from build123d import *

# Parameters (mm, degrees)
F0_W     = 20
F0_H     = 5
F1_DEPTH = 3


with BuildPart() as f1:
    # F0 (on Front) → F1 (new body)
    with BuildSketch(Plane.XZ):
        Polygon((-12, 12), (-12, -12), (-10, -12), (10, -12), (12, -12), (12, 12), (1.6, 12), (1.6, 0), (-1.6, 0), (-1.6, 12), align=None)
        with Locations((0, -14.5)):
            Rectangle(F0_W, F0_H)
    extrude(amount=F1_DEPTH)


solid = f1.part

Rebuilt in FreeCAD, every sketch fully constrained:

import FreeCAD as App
import Part
import Sketcher
from FreeCAD import Vector

doc = App.newDocument("Part")
params = doc.addObject("Spreadsheet::Sheet", "Params")
for row, (alias, value) in enumerate([
    ("sketch1_width", "2 mm"),
    ("sketch1_width2", "20 mm"),
    ("sketch1_height", "24 mm"),
    ("sketch1_height2", "5 mm"),
    ("sketch1_width3", "10.4 mm"),
    ("pad1_length", "3 mm"),
], start=1):
    params.set(f"A{row}", alias)
    params.set(f"B{row}", "=" + value)
    params.setAlias(f"B{row}", alias)

body = doc.addObject("PartDesign::Body", "Body")

sketch1 = body.newObject("Sketcher::SketchObject", "Sketch")
sketch1.AttachmentSupport = (doc.getObject("XZ_Plane"), [""])
sketch1.MapMode = "FlatFace"
sketch1.addGeometry(Part.LineSegment(Vector(-12, 12, 0), Vector(-12, -12, 0)), False)
sketch1.addGeometry(Part.LineSegment(Vector(-12, -12, 0), Vector(-10, -12, 0)), False)
sketch1.addGeometry(Part.LineSegment(Vector(-10, -12, 0), Vector(-10, -17, 0)), False)
sketch1.addGeometry(Part.LineSegment(Vector(-10, -17, 0), Vector(10, -17, 0)), False)
sketch1.addGeometry(Part.LineSegment(Vector(10, -17, 0), Vector(10, -12, 0)), False)
sketch1.addGeometry(Part.LineSegment(Vector(10, -12, 0), Vector(12, -12, 0)), False)
sketch1.addGeometry(Part.LineSegment(Vector(12, -12, 0), Vector(12, 12, 0)), False)
sketch1.addGeometry(Part.LineSegment(Vector(12, 12, 0), Vector(1.6, 12, 0)), False)
sketch1.addGeometry(Part.LineSegment(Vector(1.6, 12, 0), Vector(1.6, 0, 0)), False)
sketch1.addGeometry(Part.LineSegment(Vector(1.6, 0, 0), Vector(-1.6, 0, 0)), False)
sketch1.addGeometry(Part.LineSegment(Vector(-1.6, 0, 0), Vector(-1.6, 12, 0)), False)
sketch1.addGeometry(Part.LineSegment(Vector(-1.6, 12, 0), Vector(-12, 12, 0)), False)
sketch1.addConstraint(Sketcher.Constraint("Coincident", 0, 2, 1, 1))
sketch1.addConstraint(Sketcher.Constraint("Coincident", 1, 2, 2, 1))
sketch1.addConstraint(Sketcher.Constraint("Coincident", 2, 2, 3, 1))
sketch1.addConstraint(Sketcher.Constraint("Coincident", 3, 2, 4, 1))
sketch1.addConstraint(Sketcher.Constraint("Coincident", 4, 2, 5, 1))
sketch1.addConstraint(Sketcher.Constraint("Coincident", 5, 2, 6, 1))
sketch1.addConstraint(Sketcher.Constraint("Coincident", 6, 2, 7, 1))
sketch1.addConstraint(Sketcher.Constraint("Coincident", 7, 2, 8, 1))
sketch1.addConstraint(Sketcher.Constraint("Coincident", 8, 2, 9, 1))
sketch1.addConstraint(Sketcher.Constraint("Coincident", 9, 2, 10, 1))
sketch1.addConstraint(Sketcher.Constraint("Coincident", 10, 2, 11, 1))
sketch1.addConstraint(Sketcher.Constraint("Coincident", 11, 2, 0, 1))
sketch1.addConstraint(Sketcher.Constraint("Vertical", 0))
sketch1.addConstraint(Sketcher.Constraint("Horizontal", 1))
sketch1.addConstraint(Sketcher.Constraint("Vertical", 2))
sketch1.addConstraint(Sketcher.Constraint("Horizontal", 3))
sketch1.addConstraint(Sketcher.Constraint("Vertical", 4))
sketch1.addConstraint(Sketcher.Constraint("Horizontal", 5))
sketch1.addConstraint(Sketcher.Constraint("Vertical", 6))
sketch1.addConstraint(Sketcher.Constraint("Horizontal", 7))
sketch1.addConstraint(Sketcher.Constraint("Vertical", 8))
sketch1.addConstraint(Sketcher.Constraint("Horizontal", 9))
sketch1.addConstraint(Sketcher.Constraint("Vertical", 10))
sketch1.addConstraint(Sketcher.Constraint("Horizontal", 11))
sketch1.addConstraint(Sketcher.Constraint("Symmetric", 0, 2, 6, 2, -1, 1))
sketch1.addConstraint(Sketcher.Constraint("Symmetric", 8, 2, 9, 2, -1, 1))
sketch1.addConstraint(Sketcher.Constraint("Symmetric", 1, 2, 4, 2, -2))
sketch1.addConstraint(Sketcher.Constraint("Horizontal", 7, 2, 10, 2))
sketch1.addConstraint(Sketcher.Constraint("DistanceX", 1, 1, 1, 2, 2.0))
sketch1.addConstraint(Sketcher.Constraint("DistanceX", 3, 1, 3, 2, 20.0))
sketch1.addConstraint(Sketcher.Constraint("DistanceY", 0, 2, 0, 1, 24.0))
sketch1.addConstraint(Sketcher.Constraint("DistanceY", 2, 2, 2, 1, 5.0))
sketch1.addConstraint(Sketcher.Constraint("DistanceX", 7, 2, 7, 1, 10.4))
sketch1.setExpression("Constraints[28]", "Params.sketch1_width")
sketch1.setExpression("Constraints[29]", "Params.sketch1_width2")
sketch1.setExpression("Constraints[30]", "Params.sketch1_height")
sketch1.setExpression("Constraints[31]", "Params.sketch1_height2")
sketch1.setExpression("Constraints[32]", "Params.sketch1_width3")
pad1 = body.newObject("PartDesign::Pad", "Pad")
pad1.Profile = sketch1
pad1.setExpression("Length", "Params.pad1_length")

doc.recompute()
